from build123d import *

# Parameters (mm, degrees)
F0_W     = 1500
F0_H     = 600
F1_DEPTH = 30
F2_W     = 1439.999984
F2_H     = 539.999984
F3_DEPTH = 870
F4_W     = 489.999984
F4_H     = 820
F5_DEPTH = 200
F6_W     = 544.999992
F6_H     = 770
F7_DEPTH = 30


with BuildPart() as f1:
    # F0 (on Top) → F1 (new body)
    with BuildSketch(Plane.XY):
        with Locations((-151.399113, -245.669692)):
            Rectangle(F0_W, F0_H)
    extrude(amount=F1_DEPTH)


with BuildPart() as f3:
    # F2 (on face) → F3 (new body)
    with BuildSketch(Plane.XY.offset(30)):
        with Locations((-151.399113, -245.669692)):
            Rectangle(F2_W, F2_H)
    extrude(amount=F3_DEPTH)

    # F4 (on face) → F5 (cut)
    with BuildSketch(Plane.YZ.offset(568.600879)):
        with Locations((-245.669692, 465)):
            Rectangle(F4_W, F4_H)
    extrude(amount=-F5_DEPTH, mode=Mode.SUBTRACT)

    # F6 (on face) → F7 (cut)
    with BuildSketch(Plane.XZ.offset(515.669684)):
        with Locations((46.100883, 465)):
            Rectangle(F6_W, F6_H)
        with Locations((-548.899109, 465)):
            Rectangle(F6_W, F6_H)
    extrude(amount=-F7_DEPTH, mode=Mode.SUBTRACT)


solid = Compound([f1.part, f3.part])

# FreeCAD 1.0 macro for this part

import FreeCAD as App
import Part
import Sketcher

V = App.Vector
Q = App.Units.Quantity


def add_polygon(sketch, points):
    """Adds a closed chain of lines whose ends are joined by coincident constraints."""
    first, n = sketch.GeometryCount, len(points)
    for a, b in zip(points, points[1:] + points[:1]):
        sketch.addGeometry(Part.LineSegment(App.Vector(*a, 0), App.Vector(*b, 0)), False)
    for i in range(n):
        sketch.addConstraint(Sketcher.Constraint("Coincident", first + i, 2, first + (i + 1) % n, 1))

doc = App.newDocument("Part")
params = doc.addObject("Spreadsheet::Sheet", "Params")
for row, (alias, value) in enumerate([
    ("sketch1_width", "1500 mm"),
    ("sketch1_height", "600 mm"),
    ("pad1_length", "30 mm"),
    ("pad2_length", "870 mm"),
    ("sketch3_height", "820 mm"),
    ("pocket1_length", "200 mm"),
    ("sketch4_height", "770 mm"),
    ("pocket2_length", "30 mm"),
], start=1):
    params.set(f"A{row}", alias)
    params.set(f"B{row}", "=" + value)
    params.setAlias(f"B{row}", alias)

body = doc.addObject("PartDesign::Body", "Body")

# Sketch on XY plane
sketch1 = body.newObject("Sketcher::SketchObject", "Sketch")
sketch1.AttachmentSupport = (doc.getObject("XY_Plane"), [""])
sketch1.MapMode = "FlatFace"
add_polygon(sketch1, [(-901, 54), (-901, -546), (599, -546), (599, 54)])  # lines 0-3
sketch1.addConstraint([
    Sketcher.Constraint("Vertical", 0),
    Sketcher.Constraint("Horizontal", 1),
    Sketcher.Constraint("Vertical", 2),
    Sketcher.Constraint("Horizontal", 3),
    Sketcher.Constraint("DistanceX", 1, 1, 1, 2, Q("1500 mm")),
    Sketcher.Constraint("DistanceY", 0, 2, 0, 1, Q("600 mm")),
    Sketcher.Constraint("DistanceY", -1, 1, 2, 2, Q("54.330308 mm")),
    Sketcher.Constraint("DistanceX", 0, 2, -1, 1, Q("901.399113 mm")),
])
sketch1.setExpression("Constraints[8]", "Params.sketch1_width")
sketch1.setExpression("Constraints[9]", "Params.sketch1_height")
pad1 = body.newObject("PartDesign::Pad", "Pad")
pad1.Profile = sketch1
pad1.setExpression("Length", "Params.pad1_length")
body2 = doc.addObject("PartDesign::Body", "Body001")

# Sketch on XY plane
sketch2 = body2.newObject("Sketcher::SketchObject", "Sketch001")
sketch2.AttachmentSupport = (doc.getObject("XY_Plane001"), [""])
sketch2.MapMode = "FlatFace"
sketch2.AttachmentOffset = App.Placement(V(0, 0, 30), App.Rotation())
add_polygon(sketch2, [(-871, 24), (-871, -516), (569, -516), (569, 24)])  # lines 0-3
sketch2.addConstraint([
    Sketcher.Constraint("Vertical", 0),
    Sketcher.Constraint("Horizontal", 1),
    Sketcher.Constraint("Vertical", 2),
    Sketcher.Constraint("Horizontal", 3),
    Sketcher.Constraint("DistanceY", -1, 1, 2, 2, Q("24.3303 mm")),
    Sketcher.Constraint("DistanceX", 1, 1, 1, 2, Q("1439.999984 mm")),
    Sketcher.Constraint("DistanceY", 0, 2, 0, 1, Q("539.999984 mm")),
    Sketcher.Constraint("DistanceX", -1, 1, 1, 2, Q("568.600879 mm")),
])
pad2 = body2.newObject("PartDesign::Pad", "Pad001")
pad2.Profile = sketch2
pad2.setExpression("Length", "Params.pad2_length")

# Sketch on YZ plane
sketch3 = body2.newObject("Sketcher::SketchObject", "Sketch002")
sketch3.AttachmentSupport = (doc.getObject("YZ_Plane001"), [""])
sketch3.MapMode = "FlatFace"
sketch3.AttachmentOffset = App.Placement(V(0, 0, 568.600879), App.Rotation())
add_polygon(sketch3, [(-491, 875), (-491, 55), (-1, 55), (-1, 875)])  # lines 0-3
sketch3.addConstraint([
    Sketcher.Constraint("Vertical", 0),
    Sketcher.Constraint("Horizontal", 1),
    Sketcher.Constraint("Vertical", 2),
    Sketcher.Constraint("Horizontal", 3),
    Sketcher.Constraint("DistanceY", 0, 2, 0, 1, Q("820 mm")),
    Sketcher.Constraint("DistanceY", -1, 1, 0, 2, Q("55 mm")),
    Sketcher.Constraint("DistanceX", 1, 2, -1, 1, Q("0.6697 mm")),
    Sketcher.Constraint("DistanceX", 1, 1, 1, 2, Q("489.999984 mm")),
])
sketch3.setExpression("Constraints[8]", "Params.sketch3_height")
pocket1 = body2.newObject("PartDesign::Pocket", "Pocket")
pocket1.Profile = sketch3
pocket1.setExpression("Length", "Params.pocket1_length")

# Sketch on XZ plane
sketch4 = body2.newObject("Sketcher::SketchObject", "Sketch003")
sketch4.AttachmentSupport = (doc.getObject("XZ_Plane001"), [""])
sketch4.MapMode = "FlatFace"
sketch4.AttachmentOffset = App.Placement(V(0, 0, 515.669684), App.Rotation())
add_polygon(sketch4, [(-226, 850), (-226, 80), (319, 80), (319, 850)])  # lines 0-3
add_polygon(sketch4, [(-821, 850), (-821, 80), (-276, 80), (-276, 850)])  # lines 4-7
sketch4.addConstraint([
    Sketcher.Constraint("Vertical", 0),
    Sketcher.Constraint("Horizontal", 1),
    Sketcher.Constraint("Vertical", 2),
    Sketcher.Constraint("Horizontal", 3),
    Sketcher.Constraint("Vertical", 4),
    Sketcher.Constraint("Horizontal", 5),
    Sketcher.Constraint("Vertical", 6),
    Sketcher.Constraint("Horizontal", 7),
    Sketcher.Constraint("Horizontal", 1, 2, 4, 2),
    Sketcher.Constraint("Horizontal", 3, 2, 6, 2),
    Sketcher.Constraint("Equal", 3, 5),
    Sketcher.Constraint("DistanceY", 0, 2, 0, 1, Q("770 mm")),
    Sketcher.Constraint("DistanceY", -1, 1, 0, 2, Q("80 mm")),
    Sketcher.Constraint("DistanceX", 5, 2, 0, 2, Q("50 mm")),
    Sketcher.Constraint("DistanceX", 1, 1, 1, 2, Q("544.999992 mm")),
    Sketcher.Constraint("DistanceX", -1, 1, 1, 2, Q("318.600879 mm")),
])
sketch4.setExpression("Constraints[19]", "Params.sketch4_height")
pocket2 = body2.newObject("PartDesign::Pocket", "Pocket001")
pocket2.Profile = sketch4
pocket2.setExpression("Length", "Params.pocket2_length")

doc.recompute()
